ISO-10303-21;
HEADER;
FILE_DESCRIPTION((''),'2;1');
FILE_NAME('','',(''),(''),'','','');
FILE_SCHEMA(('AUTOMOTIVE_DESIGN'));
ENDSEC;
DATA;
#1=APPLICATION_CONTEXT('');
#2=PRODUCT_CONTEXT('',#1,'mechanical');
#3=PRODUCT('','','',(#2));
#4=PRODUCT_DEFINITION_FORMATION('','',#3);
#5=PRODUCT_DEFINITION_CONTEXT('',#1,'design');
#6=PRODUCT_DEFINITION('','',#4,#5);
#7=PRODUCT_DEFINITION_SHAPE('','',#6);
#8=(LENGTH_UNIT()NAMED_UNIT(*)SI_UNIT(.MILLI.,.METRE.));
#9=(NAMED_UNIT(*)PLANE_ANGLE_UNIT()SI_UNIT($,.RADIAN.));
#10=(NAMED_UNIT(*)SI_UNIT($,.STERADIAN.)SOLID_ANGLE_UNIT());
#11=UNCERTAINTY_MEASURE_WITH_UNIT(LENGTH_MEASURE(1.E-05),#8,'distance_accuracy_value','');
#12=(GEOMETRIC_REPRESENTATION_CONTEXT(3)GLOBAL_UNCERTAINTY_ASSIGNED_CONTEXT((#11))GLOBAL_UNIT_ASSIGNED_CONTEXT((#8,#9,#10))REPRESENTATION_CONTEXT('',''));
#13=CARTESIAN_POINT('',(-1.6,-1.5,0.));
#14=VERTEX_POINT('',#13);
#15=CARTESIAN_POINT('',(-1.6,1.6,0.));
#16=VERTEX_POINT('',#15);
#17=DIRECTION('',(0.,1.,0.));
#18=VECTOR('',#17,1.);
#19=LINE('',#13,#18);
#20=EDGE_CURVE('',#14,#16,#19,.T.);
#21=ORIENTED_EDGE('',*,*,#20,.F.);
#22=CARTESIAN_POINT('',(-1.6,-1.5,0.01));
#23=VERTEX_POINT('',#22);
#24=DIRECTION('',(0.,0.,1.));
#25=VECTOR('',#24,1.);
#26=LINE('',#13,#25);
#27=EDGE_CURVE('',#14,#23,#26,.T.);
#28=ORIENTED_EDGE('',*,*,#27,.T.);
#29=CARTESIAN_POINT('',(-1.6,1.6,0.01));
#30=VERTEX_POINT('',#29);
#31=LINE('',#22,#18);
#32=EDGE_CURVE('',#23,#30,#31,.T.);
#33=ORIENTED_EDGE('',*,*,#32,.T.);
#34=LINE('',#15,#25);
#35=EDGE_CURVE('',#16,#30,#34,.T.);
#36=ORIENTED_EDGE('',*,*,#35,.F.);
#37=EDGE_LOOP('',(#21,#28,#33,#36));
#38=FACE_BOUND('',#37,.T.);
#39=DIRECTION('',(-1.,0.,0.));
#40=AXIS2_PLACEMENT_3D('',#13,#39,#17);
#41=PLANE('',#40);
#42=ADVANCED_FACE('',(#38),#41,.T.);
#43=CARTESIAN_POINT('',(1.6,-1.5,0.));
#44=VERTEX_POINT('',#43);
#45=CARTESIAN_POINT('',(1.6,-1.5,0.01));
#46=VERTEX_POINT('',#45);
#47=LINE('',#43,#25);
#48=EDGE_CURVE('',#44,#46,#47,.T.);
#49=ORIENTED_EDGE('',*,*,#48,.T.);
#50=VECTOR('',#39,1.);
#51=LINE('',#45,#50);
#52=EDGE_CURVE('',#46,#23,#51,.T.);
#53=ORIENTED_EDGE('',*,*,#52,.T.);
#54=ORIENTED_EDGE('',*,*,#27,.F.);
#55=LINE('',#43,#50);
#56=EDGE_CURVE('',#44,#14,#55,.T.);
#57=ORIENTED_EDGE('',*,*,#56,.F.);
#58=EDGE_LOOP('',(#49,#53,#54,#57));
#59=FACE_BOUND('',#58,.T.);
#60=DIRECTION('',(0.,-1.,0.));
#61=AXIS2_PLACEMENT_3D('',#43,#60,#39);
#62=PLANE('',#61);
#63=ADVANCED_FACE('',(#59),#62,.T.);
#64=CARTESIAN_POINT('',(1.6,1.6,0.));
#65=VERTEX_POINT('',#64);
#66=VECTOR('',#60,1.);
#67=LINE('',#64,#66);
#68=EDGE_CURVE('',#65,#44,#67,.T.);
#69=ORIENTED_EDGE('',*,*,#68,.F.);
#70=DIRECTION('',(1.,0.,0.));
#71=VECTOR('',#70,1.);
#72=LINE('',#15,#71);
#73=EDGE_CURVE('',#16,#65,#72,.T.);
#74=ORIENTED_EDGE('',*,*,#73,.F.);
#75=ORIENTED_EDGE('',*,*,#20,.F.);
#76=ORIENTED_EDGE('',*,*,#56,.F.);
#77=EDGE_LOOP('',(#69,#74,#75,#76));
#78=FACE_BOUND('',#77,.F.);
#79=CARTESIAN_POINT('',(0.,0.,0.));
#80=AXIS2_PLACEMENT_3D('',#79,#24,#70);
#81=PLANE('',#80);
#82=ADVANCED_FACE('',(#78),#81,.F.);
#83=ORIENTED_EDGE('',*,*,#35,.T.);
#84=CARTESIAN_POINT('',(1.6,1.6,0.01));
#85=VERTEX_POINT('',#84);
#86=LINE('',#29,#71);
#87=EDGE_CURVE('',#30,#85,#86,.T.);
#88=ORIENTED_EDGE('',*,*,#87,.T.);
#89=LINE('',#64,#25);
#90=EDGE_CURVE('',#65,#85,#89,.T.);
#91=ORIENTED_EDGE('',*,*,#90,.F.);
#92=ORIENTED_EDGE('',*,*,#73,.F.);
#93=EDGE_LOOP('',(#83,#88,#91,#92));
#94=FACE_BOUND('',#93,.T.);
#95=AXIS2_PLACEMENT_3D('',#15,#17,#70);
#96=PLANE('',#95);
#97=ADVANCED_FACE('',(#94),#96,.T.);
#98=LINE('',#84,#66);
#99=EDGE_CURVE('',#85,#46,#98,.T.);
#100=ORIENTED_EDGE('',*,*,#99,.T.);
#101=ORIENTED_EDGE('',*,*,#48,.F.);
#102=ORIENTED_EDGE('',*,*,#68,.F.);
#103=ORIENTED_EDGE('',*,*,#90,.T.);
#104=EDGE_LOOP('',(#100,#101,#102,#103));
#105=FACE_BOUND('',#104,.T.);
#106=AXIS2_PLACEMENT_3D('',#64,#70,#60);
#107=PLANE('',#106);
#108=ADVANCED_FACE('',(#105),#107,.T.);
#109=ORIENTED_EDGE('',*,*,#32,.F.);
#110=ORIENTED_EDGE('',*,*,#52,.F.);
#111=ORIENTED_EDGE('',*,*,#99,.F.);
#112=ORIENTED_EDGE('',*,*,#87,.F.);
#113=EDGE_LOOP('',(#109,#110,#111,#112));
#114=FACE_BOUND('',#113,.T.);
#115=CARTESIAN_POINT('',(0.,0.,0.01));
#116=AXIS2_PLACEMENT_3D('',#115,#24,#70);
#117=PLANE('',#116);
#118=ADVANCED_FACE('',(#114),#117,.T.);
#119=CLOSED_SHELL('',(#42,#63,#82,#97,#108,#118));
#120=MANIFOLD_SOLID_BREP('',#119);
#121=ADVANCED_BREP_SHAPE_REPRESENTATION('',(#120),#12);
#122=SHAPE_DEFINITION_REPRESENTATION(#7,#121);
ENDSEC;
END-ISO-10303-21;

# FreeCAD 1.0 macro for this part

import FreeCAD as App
import Part
import Sketcher

V = App.Vector
Q = App.Units.Quantity


def add_polygon(sketch, points):
    """Adds a closed chain of lines whose ends are joined by coincident constraints."""
    first, n = sketch.GeometryCount, len(points)
    for a, b in zip(points, points[1:] + points[:1]):
        sketch.addGeometry(Part.LineSegment(App.Vector(*a, 0), App.Vector(*b, 0)), False)
    for i in range(n):
        sketch.addConstraint(Sketcher.Constraint("Coincident", first + i, 2, first + (i + 1) % n, 1))

doc = App.newDocument("Part")
body = doc.addObject("PartDesign::Body", "Body")

# Sketch on XY plane
sketch1 = body.newObject("Sketcher::SketchObject", "Sketch")
sketch1.AttachmentSupport = (doc.getObject("XY_Plane"), [""])
sketch1.MapMode = "FlatFace"
add_polygon(sketch1, [(1.6, 1.6), (-1.6, 1.6), (-1.6, -1.5), (1.6, -1.5)])  # lines 0-3
sketch1.addConstraint([
    Sketcher.Constraint("Horizontal", 0),
    Sketcher.Constraint("Vertical", 1),
    Sketcher.Constraint("Horizontal", 2),
    Sketcher.Constraint("Vertical", 3),
    Sketcher.Constraint("DistanceX", 0, 2, 0, 1, Q("3.2 mm")),
    Sketcher.Constraint("DistanceY", 1, 2, 1, 1, Q("3.1 mm")),
    Sketcher.Constraint("DistanceX", 0, 2, -1, 1, Q("1.6 mm")),
    Sketcher.Constraint("DistanceY", -1, 1, 0, 2, Q("1.6 mm")),
])
pad1 = body.newObject("PartDesign::Pad", "Pad")
pad1.Profile = sketch1
pad1.Length = 0.01

doc.recompute()
